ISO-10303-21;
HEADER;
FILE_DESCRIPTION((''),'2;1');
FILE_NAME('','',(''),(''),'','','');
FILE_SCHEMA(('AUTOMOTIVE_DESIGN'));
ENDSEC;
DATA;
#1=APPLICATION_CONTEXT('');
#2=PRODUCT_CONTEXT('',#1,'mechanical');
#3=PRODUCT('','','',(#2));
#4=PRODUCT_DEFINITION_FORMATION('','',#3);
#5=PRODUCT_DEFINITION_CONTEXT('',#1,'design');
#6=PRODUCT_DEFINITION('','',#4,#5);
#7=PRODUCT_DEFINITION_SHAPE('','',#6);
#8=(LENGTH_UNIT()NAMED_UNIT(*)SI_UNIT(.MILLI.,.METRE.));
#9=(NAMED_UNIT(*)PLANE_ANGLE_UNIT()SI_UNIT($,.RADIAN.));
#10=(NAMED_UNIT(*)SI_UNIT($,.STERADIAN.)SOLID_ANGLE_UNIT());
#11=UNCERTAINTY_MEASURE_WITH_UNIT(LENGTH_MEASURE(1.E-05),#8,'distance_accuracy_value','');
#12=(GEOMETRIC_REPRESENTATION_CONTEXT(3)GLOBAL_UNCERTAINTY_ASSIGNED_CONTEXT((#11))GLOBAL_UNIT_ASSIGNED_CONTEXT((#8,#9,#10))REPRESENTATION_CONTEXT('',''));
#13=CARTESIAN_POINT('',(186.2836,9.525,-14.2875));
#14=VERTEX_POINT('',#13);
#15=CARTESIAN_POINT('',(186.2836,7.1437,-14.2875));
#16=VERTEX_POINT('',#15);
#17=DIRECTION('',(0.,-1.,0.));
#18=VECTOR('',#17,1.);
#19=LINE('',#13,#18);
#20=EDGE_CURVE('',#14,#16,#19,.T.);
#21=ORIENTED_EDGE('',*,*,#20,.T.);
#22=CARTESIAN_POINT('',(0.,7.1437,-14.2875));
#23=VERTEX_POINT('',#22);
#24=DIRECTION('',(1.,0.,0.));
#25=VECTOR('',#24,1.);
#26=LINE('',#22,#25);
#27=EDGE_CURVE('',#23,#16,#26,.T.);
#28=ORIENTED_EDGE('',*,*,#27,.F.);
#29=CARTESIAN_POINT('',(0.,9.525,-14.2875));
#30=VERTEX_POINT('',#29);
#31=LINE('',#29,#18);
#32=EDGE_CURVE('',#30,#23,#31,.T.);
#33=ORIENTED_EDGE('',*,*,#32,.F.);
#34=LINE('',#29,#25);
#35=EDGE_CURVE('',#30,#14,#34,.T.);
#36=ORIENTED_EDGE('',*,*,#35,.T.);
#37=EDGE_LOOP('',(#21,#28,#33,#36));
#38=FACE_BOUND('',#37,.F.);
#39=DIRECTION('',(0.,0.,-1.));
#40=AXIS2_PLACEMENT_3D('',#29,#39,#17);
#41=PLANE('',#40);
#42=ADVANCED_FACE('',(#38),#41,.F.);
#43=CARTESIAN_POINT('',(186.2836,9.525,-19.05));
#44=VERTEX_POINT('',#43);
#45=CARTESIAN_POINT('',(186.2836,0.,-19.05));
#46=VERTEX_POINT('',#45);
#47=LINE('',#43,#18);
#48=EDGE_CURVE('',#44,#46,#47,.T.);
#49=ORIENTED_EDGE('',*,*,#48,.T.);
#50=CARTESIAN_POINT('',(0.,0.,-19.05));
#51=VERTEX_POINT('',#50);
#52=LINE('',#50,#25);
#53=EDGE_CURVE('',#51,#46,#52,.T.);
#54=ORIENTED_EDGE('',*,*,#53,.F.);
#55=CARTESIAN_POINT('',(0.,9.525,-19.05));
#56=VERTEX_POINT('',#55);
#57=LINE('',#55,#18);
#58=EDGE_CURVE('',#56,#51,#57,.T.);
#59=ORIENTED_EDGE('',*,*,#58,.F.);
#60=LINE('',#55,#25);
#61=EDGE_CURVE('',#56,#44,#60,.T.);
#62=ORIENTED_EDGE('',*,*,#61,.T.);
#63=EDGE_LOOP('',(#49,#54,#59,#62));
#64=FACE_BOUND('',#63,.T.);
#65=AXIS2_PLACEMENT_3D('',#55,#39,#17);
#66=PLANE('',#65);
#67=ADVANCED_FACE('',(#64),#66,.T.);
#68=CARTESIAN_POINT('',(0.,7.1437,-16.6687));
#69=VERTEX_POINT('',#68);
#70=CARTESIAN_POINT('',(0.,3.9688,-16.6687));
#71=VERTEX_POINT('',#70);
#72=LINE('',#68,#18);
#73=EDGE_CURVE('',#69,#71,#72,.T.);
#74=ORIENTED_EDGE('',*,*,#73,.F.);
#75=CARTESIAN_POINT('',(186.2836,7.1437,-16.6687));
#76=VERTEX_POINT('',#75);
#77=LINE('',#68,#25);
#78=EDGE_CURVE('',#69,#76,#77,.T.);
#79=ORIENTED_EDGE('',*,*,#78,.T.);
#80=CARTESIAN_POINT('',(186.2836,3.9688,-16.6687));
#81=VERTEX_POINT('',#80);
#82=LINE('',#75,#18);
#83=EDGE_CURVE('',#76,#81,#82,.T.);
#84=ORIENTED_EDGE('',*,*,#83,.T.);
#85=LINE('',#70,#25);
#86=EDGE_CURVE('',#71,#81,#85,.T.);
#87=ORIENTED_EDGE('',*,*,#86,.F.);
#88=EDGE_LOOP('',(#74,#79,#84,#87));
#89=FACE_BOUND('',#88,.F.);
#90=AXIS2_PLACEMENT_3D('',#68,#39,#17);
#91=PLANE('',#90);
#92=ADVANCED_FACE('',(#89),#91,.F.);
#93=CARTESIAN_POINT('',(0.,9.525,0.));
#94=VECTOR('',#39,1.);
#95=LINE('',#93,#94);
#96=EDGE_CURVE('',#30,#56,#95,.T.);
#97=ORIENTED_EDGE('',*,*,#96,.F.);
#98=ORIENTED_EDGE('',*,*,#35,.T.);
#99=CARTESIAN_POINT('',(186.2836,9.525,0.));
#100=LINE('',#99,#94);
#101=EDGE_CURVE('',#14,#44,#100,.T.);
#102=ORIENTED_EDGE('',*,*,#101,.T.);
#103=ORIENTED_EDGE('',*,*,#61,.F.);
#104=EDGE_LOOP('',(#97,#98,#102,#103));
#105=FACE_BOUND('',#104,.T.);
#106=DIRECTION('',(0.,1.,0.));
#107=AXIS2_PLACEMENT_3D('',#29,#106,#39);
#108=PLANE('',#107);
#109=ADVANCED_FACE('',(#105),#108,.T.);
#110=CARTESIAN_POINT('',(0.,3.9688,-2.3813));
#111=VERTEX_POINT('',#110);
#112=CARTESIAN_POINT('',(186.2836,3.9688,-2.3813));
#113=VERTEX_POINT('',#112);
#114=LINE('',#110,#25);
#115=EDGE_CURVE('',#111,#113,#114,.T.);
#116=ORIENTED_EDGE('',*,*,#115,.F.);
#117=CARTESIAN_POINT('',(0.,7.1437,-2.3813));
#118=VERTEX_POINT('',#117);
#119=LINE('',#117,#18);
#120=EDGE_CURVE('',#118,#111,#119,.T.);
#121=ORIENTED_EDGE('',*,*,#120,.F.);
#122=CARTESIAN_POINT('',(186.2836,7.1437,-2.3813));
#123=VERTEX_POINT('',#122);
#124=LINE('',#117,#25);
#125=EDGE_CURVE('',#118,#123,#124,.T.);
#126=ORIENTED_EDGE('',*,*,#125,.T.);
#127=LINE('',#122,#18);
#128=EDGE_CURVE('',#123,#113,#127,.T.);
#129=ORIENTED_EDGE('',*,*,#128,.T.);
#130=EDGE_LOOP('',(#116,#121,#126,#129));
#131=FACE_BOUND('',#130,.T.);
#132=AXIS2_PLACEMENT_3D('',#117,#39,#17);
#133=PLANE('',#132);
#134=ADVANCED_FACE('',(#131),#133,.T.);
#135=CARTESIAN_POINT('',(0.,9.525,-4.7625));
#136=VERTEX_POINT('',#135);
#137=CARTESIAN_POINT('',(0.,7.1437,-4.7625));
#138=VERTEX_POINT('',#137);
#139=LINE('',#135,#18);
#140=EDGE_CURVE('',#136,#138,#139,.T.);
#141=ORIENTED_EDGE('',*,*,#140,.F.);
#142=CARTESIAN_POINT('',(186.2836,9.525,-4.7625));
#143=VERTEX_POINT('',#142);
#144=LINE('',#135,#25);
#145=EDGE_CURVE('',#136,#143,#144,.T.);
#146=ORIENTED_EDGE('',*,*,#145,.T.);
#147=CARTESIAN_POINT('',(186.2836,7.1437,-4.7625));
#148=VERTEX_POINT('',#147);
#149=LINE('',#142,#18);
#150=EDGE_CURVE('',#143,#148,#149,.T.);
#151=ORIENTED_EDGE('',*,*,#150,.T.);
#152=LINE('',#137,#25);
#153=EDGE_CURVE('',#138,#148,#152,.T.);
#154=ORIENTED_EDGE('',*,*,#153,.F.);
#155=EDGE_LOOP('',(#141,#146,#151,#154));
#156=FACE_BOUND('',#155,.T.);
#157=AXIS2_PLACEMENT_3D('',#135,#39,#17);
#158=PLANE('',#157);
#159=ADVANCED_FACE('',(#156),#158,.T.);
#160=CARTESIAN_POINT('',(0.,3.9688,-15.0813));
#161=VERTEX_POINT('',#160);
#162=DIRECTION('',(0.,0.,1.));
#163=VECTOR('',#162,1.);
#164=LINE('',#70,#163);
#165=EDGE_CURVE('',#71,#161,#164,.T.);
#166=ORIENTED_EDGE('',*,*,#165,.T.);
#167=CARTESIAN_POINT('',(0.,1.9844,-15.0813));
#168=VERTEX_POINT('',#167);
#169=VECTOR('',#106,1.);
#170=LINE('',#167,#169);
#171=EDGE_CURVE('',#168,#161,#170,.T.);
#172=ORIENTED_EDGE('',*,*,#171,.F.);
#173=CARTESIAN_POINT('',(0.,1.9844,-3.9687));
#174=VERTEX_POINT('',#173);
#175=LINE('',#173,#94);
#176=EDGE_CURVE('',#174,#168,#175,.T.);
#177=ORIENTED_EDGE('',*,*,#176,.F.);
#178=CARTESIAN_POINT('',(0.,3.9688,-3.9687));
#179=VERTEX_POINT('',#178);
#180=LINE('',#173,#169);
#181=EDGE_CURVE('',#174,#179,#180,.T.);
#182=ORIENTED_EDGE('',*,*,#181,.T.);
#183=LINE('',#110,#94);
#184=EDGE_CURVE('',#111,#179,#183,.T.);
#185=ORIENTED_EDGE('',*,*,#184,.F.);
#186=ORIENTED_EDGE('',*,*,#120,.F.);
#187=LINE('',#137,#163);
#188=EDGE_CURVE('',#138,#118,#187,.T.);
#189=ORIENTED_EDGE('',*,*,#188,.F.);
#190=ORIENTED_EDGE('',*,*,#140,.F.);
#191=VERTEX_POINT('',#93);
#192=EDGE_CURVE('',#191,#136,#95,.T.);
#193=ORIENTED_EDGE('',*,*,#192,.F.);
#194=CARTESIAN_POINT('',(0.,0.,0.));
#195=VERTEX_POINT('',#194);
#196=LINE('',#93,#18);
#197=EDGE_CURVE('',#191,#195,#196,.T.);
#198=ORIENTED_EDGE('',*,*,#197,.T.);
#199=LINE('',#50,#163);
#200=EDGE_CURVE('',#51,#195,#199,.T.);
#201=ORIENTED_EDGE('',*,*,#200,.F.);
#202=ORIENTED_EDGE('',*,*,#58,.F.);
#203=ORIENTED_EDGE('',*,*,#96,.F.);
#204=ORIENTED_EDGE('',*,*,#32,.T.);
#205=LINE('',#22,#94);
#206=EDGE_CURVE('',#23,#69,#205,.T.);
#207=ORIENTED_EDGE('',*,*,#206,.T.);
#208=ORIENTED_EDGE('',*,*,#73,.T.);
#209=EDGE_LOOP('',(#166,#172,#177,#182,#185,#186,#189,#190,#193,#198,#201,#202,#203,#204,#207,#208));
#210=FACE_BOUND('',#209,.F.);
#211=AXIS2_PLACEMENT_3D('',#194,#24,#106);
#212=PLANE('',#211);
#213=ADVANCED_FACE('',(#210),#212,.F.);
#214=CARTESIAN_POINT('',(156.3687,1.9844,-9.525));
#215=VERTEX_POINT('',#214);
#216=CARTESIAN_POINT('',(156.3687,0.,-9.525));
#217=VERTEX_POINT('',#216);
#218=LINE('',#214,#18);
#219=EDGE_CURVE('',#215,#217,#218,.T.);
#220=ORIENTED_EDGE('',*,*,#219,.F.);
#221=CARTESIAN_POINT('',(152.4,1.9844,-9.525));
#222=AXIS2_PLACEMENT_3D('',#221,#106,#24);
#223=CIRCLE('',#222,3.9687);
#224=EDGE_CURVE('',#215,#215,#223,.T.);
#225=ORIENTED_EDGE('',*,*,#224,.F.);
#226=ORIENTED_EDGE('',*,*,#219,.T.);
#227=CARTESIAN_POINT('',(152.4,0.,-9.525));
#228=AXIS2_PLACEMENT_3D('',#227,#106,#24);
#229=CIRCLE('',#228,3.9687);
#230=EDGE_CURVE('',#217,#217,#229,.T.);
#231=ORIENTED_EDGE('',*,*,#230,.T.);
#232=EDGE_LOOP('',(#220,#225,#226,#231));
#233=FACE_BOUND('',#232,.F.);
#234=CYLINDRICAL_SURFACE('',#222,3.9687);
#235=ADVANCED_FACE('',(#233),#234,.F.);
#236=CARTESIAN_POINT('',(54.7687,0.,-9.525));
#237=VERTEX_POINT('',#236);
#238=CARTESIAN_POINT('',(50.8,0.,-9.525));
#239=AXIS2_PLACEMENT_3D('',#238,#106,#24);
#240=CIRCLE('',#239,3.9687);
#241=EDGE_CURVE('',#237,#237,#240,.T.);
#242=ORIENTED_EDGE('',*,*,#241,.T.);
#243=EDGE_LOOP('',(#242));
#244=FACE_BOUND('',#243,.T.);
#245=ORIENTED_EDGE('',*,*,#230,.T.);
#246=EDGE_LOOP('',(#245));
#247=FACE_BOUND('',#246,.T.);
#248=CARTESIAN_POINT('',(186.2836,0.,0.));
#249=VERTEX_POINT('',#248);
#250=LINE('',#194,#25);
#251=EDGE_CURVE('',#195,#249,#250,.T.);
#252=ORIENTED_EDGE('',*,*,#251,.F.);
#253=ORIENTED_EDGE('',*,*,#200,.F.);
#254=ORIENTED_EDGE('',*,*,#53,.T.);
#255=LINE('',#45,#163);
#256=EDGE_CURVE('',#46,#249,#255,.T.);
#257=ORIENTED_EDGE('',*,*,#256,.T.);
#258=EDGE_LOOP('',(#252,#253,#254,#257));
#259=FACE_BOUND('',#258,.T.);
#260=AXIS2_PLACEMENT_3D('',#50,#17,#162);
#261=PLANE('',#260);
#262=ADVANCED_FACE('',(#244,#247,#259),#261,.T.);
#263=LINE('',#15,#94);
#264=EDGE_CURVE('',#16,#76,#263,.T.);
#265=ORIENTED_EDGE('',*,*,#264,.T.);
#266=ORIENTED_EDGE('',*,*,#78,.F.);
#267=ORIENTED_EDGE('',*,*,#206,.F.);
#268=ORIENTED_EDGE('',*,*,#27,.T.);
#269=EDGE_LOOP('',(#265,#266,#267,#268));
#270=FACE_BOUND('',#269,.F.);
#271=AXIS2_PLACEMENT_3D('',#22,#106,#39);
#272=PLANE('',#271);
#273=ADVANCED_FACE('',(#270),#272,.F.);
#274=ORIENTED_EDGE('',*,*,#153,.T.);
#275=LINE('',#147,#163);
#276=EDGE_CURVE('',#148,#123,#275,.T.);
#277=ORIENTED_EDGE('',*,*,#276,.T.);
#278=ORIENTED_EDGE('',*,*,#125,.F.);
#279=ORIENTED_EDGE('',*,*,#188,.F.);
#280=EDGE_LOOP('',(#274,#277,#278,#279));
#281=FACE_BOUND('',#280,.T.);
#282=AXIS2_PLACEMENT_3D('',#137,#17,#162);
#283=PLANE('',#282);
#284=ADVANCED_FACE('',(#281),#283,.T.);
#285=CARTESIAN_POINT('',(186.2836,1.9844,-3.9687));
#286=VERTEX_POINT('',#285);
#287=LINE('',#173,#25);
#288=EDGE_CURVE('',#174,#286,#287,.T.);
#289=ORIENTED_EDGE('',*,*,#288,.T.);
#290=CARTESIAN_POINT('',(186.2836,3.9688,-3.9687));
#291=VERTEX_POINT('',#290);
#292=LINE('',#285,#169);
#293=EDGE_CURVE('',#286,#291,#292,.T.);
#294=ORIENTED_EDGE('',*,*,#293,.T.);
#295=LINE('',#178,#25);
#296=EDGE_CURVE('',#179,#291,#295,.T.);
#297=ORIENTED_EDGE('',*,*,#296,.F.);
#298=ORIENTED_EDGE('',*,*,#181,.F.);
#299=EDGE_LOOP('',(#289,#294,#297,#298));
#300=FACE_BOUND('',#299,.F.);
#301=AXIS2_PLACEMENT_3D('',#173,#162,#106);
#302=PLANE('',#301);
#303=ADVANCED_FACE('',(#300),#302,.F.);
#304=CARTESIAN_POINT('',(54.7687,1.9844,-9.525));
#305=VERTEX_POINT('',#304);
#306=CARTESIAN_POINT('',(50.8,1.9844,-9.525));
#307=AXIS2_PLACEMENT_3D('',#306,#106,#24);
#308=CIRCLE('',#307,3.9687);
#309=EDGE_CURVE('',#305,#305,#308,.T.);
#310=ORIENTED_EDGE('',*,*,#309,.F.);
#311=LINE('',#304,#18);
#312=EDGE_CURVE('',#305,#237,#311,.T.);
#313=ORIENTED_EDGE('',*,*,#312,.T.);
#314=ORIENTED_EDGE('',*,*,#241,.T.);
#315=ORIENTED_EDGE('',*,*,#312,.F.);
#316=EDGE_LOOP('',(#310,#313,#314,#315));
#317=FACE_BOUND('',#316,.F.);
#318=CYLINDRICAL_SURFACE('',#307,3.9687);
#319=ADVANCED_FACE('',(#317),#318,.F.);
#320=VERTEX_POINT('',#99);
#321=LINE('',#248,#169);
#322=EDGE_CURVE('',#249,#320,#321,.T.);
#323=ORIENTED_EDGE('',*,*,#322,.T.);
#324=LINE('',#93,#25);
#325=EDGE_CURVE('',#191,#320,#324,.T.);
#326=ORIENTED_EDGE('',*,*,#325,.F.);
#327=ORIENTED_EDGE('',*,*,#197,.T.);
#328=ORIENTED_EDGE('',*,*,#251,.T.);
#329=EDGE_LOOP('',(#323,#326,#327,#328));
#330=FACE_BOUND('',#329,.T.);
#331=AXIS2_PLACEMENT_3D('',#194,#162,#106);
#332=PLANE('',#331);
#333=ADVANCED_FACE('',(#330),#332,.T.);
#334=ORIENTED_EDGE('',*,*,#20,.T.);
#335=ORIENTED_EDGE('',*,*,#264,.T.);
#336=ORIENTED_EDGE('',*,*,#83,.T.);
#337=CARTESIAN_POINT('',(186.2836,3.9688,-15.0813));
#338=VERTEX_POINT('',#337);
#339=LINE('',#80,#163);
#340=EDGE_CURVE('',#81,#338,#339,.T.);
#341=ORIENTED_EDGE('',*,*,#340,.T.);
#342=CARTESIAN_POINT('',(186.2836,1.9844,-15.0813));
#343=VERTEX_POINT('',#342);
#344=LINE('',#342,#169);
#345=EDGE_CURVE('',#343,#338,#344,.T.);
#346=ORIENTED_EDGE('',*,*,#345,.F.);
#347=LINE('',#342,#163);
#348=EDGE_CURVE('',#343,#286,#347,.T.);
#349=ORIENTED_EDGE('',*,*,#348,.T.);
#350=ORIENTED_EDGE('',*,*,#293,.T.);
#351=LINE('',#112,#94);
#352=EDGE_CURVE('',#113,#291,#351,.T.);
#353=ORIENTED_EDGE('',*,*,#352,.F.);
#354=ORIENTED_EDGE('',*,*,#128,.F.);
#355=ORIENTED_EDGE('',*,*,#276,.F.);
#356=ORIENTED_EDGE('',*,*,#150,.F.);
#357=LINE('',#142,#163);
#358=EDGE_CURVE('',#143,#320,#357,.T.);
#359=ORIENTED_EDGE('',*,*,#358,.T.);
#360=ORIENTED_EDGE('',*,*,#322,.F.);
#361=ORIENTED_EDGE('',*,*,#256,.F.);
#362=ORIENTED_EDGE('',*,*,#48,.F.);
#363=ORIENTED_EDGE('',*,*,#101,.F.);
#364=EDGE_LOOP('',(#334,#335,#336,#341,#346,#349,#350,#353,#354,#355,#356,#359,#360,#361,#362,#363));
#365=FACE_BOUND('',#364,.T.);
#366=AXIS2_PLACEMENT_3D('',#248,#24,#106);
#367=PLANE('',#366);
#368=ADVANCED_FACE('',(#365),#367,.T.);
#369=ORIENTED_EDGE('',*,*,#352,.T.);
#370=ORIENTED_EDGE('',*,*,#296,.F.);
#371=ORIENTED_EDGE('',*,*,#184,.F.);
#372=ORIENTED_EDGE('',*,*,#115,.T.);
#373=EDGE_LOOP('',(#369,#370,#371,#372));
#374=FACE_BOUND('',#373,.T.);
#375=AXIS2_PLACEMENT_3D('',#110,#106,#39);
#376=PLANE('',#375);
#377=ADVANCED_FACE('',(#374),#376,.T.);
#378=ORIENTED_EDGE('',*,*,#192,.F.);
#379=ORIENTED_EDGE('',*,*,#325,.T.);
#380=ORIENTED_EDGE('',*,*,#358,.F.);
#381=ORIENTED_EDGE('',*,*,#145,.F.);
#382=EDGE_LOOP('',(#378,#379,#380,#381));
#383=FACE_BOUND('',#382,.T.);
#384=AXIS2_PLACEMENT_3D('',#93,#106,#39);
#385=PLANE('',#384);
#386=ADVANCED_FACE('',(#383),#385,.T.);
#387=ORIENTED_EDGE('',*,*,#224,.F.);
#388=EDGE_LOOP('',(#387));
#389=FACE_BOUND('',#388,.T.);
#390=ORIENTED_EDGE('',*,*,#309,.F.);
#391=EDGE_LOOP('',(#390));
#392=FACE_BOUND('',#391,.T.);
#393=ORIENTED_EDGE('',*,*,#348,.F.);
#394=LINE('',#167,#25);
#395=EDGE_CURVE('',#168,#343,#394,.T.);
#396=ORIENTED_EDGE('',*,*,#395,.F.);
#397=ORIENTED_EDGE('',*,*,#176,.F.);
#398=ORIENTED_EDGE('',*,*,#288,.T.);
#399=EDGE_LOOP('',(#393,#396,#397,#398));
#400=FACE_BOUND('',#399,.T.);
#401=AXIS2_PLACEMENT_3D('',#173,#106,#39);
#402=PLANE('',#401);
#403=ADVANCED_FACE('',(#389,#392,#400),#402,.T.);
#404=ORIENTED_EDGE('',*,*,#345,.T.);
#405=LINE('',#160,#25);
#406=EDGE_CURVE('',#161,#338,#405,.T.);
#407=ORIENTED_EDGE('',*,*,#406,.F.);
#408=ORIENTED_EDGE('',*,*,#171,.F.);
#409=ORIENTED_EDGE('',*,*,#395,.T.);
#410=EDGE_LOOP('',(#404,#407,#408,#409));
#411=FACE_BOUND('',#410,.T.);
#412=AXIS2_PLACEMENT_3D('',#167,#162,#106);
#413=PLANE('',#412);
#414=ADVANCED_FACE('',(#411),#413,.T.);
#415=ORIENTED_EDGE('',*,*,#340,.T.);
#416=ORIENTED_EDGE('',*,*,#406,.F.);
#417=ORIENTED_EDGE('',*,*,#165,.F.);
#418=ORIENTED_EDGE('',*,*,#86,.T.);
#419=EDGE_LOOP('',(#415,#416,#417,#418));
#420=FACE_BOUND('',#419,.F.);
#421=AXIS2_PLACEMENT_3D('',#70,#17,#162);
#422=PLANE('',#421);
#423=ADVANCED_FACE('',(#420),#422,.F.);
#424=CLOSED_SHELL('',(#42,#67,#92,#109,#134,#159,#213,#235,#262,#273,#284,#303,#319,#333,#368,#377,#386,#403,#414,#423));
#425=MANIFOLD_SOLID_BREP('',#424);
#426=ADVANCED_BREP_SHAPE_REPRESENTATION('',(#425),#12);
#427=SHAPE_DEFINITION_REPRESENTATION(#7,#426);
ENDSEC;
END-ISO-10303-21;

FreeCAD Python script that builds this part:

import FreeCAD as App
import Part
import Sketcher
Q = App.Units.Quantity

doc = App.newDocument("Part")
params = doc.addObject("Spreadsheet::Sheet", "Params")
for row, (alias, value) in enumerate([
    ("sketch1_height", "0.75 in"),
    ("sketch1_width", "0.375 in"),
    ("sketch1_height2", "0.1875 in"),
    ("sketch1_width2", "0.078126 in"),
    ("pad1_length", "7.334 in"),
    ("sketch2_diameter", "0.3125 in"),
], start=1):
    params.set(f"A{row}", alias)
    params.set(f"B{row}", "=" + value)
    params.setAlias(f"B{row}", alias)

body = doc.addObject("PartDesign::Body", "Body")

sketch1 = doc.addObject("Sketcher::SketchObject", "Sketch")
body.addObject(sketch1)
sketch1.AttachmentSupport = (doc.YZ_Plane, [""])
sketch1.MapMode = "FlatFace"
sketch1.addGeometry([
    Part.LineSegment(App.Vector(9.525, 0, 0), App.Vector(0, 0, 0)),
    Part.LineSegment(App.Vector(0, 0, 0), App.Vector(0, -19.05, 0)),
    Part.LineSegment(App.Vector(0, -19.05, 0), App.Vector(9.525, -19.05, 0)),
    Part.LineSegment(App.Vector(9.525, -19.05, 0), App.Vector(9.525, -14.2875, 0)),
    Part.LineSegment(App.Vector(9.525, -14.2875, 0), App.Vector(7.1437, -14.2875, 0)),
    Part.LineSegment(App.Vector(7.1437, -14.2875, 0), App.Vector(7.1437, -16.6687, 0)),
    Part.LineSegment(App.Vector(7.1437, -16.6687, 0), App.Vector(3.9688, -16.6687, 0)),
    Part.LineSegment(App.Vector(3.9688, -16.6687, 0), App.Vector(3.9688, -15.0813, 0)),
    Part.LineSegment(App.Vector(3.9688, -15.0813, 0), App.Vector(1.9844, -15.0813, 0)),
    Part.LineSegment(App.Vector(1.9844, -15.0813, 0), App.Vector(1.9844, -3.9687, 0)),
    Part.LineSegment(App.Vector(1.9844, -3.9687, 0), App.Vector(3.9688, -3.9687, 0)),
    Part.LineSegment(App.Vector(3.9688, -3.9687, 0), App.Vector(3.9688, -2.3813, 0)),
    Part.LineSegment(App.Vector(3.9688, -2.3813, 0), App.Vector(7.1437, -2.3813, 0)),
    Part.LineSegment(App.Vector(7.1437, -2.3813, 0), App.Vector(7.1437, -4.7625, 0)),
    Part.LineSegment(App.Vector(7.1437, -4.7625, 0), App.Vector(9.525, -4.7625, 0)),
    Part.LineSegment(App.Vector(9.525, -4.7625, 0), App.Vector(9.525, 0, 0)),
], False)
sketch1.addConstraint([
    Sketcher.Constraint("Coincident", 0, 2, 1, 1),
    Sketcher.Constraint("Coincident", 1, 2, 2, 1),
    Sketcher.Constraint("Coincident", 2, 2, 3, 1),
    Sketcher.Constraint("Coincident", 3, 2, 4, 1),
    Sketcher.Constraint("Coincident", 4, 2, 5, 1),
    Sketcher.Constraint("Coincident", 5, 2, 6, 1),
    Sketcher.Constraint("Coincident", 6, 2, 7, 1),
    Sketcher.Constraint("Coincident", 7, 2, 8, 1),
    Sketcher.Constraint("Coincident", 8, 2, 9, 1),
    Sketcher.Constraint("Coincident", 9, 2, 10, 1),
    Sketcher.Constraint("Coincident", 10, 2, 11, 1),
    Sketcher.Constraint("Coincident", 11, 2, 12, 1),
    Sketcher.Constraint("Coincident", 12, 2, 13, 1),
    Sketcher.Constraint("Coincident", 13, 2, 14, 1),
    Sketcher.Constraint("Coincident", 14, 2, 15, 1),
    Sketcher.Constraint("Coincident", 15, 2, 0, 1),
    Sketcher.Constraint("Horizontal", 0),
    Sketcher.Constraint("Vertical", 1),
    Sketcher.Constraint("Horizontal", 2),
    Sketcher.Constraint("Vertical", 3),
    Sketcher.Constraint("Horizontal", 4),
    Sketcher.Constraint("Vertical", 5),
    Sketcher.Constraint("Horizontal", 6),
    Sketcher.Constraint("Vertical", 7),
    Sketcher.Constraint("Horizontal", 8),
    Sketcher.Constraint("Vertical", 9),
    Sketcher.Constraint("Horizontal", 10),
    Sketcher.Constraint("Vertical", 11),
    Sketcher.Constraint("Horizontal", 12),
    Sketcher.Constraint("Vertical", 13),
    Sketcher.Constraint("Horizontal", 14),
    Sketcher.Constraint("Vertical", 15),
    Sketcher.Constraint("Coincident", 0, 2, -1, 1),
    Sketcher.Constraint("Vertical", 7, 2, 10, 2),
    Sketcher.Constraint("Vertical", 5, 2, 12, 2),
    Sketcher.Constraint("Vertical", 3, 2, 14, 2),
    Sketcher.Constraint("Equal", 14, 5),
    Sketcher.Constraint("Equal", 7, 11),
    Sketcher.Constraint("Equal", 5, 13),
    Sketcher.Constraint("Equal", 3, 15),
    Sketcher.Constraint("DistanceY", 1, 2, 1, 1, Q("0.75 in")),
    Sketcher.Constraint("DistanceX", 0, 2, 0, 1, Q("0.375 in")),
    Sketcher.Constraint("DistanceY", 3, 1, 3, 2, Q("0.1875 in")),
    Sketcher.Constraint("DistanceX", -1, 1, 4, 2, Q("0.281248 in")),
    Sketcher.Constraint("DistanceX", -1, 1, 6, 2, Q("0.156252 in")),
    Sketcher.Constraint("DistanceY", 9, 2, -1, 1, Q("0.156248 in")),
    Sketcher.Constraint("DistanceX", 8, 2, 8, 1, Q("0.078126 in")),
])
sketch1.setExpression("Constraints[40]", "Params.sketch1_height")
sketch1.setExpression("Constraints[41]", "Params.sketch1_width")
sketch1.setExpression("Constraints[42]", "Params.sketch1_height2")
sketch1.setExpression("Constraints[46]", "Params.sketch1_width2")
pad1 = doc.addObject("PartDesign::Pad", "Pad")
body.addObject(pad1)
pad1.Profile = sketch1
pad1.setExpression("Length", "Params.pad1_length")

sketch2 = doc.addObject("Sketcher::SketchObject", "Sketch001")
body.addObject(sketch2)
sketch2.AttachmentSupport = (doc.XZ_Plane, [""])
sketch2.MapMode = "FlatFace"
sketch2.AttachmentOffset = App.Placement(App.Vector(0, 0, -0.078126 * 25.4), App.Rotation())
sketch2.addGeometry([
    Part.Circle(App.Vector(254, -9.525, 0), App.Vector(0, 0, 1), 3.9687),
    Part.Circle(App.Vector(50.8, -9.525, 0), App.Vector(0, 0, 1), 3.9687),
    Part.Circle(App.Vector(152.4, -9.525, 0), App.Vector(0, 0, 1), 3.9687),
    Part.Circle(App.Vector(-67.7164, -9.525, 0), App.Vector(0, 0, 1), 3.9687),
], False)
sketch2.addConstraint([
    Sketcher.Constraint("Equal", 0, 1),
    Sketcher.Constraint("Equal", 1, 2),
    Sketcher.Constraint("Equal", 2, 3),
    Sketcher.Constraint("Horizontal", 0, 3, 1, 3),
    Sketcher.Constraint("Horizontal", 1, 3, 2, 3),
    Sketcher.Constraint("Horizontal", 2, 3, 3, 3),
    Sketcher.Constraint("Diameter", 0, Q("0.3125 in")),
    Sketcher.Constraint("DistanceX", -1, 1, 1, 3, Q("2 in")),
    Sketcher.Constraint("DistanceX", 1, 3, 0, 3, Q("8 in")),
    Sketcher.Constraint("DistanceX", 2, 3, 0, 3, Q("4 in")),
    Sketcher.Constraint("DistanceY", 0, 3, -1, 1, Q("0.375 in")),
    Sketcher.Constraint("DistanceX", 3, 3, -1, 1, Q("2.666 in")),
])
sketch2.setExpression("Constraints[6]", "Params.sketch2_diameter")
pocket1 = doc.addObject("PartDesign::Pocket", "Pocket")
body.addObject(pocket1)
pocket1.Profile = sketch2
pocket1.Type = "ThroughAll"
pocket1.Reversed = True

doc.recompute()
